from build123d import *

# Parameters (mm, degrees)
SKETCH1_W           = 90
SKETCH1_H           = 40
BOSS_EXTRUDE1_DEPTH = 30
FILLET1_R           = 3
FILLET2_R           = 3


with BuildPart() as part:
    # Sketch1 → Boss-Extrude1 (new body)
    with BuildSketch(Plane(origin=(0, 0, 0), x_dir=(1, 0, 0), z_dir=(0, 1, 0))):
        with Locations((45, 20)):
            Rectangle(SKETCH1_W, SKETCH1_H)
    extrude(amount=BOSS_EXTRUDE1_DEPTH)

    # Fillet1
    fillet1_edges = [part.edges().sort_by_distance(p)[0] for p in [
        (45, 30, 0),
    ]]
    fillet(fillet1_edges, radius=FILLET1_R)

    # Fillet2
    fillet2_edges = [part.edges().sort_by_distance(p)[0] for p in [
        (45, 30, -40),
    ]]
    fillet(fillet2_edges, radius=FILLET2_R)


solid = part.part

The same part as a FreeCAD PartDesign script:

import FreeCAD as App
import Part
import Sketcher

V = App.Vector


def edges_at(feature, points):
    """Names of the edges that pass closest to the given points."""
    edges = feature.Shape.Edges
    near = lambda p: min(range(len(edges)), key=lambda i: edges[i].distToShape(Part.Vertex(*p))[0])
    return sorted({f"Edge{near(p) + 1}" for p in points})

doc = App.newDocument("Part")
params = doc.addObject("Spreadsheet::Sheet", "Params")
for row, (alias, value) in enumerate([
    ("sketch1_width", "90 mm"),
    ("sketch1_height", "40 mm"),
    ("pad1_length", "30 mm"),
    ("fillet_radius", "3 mm"),
    ("fillet2_radius", "3 mm"),
], start=1):
    params.set(f"A{row}", alias)
    params.set(f"B{row}", "=" + value)
    params.setAlias(f"B{row}", alias)

body = doc.addObject("PartDesign::Body", "Body")

# Sketch on XZ plane
sketch1 = body.newObject("Sketcher::SketchObject", "Sketch")
sketch1.AttachmentSupport = (doc.getObject("XZ_Plane"), [""])
sketch1.MapMode = "FlatFace"
sketch1.addGeometry([
    Part.LineSegment(V(0, -40, 0), V(0, 0, 0)),
    Part.LineSegment(V(0, 0, 0), V(90, 0, 0)),
    Part.LineSegment(V(90, 0, 0), V(90, -40, 0)),
    Part.LineSegment(V(90, -40, 0), V(0, -40, 0)),
], False)
sketch1.addConstraint([
    Sketcher.Constraint("Coincident", 0, 2, 1, 1),
    Sketcher.Constraint("Coincident", 1, 2, 2, 1),
    Sketcher.Constraint("Coincident", 2, 2, 3, 1),
    Sketcher.Constraint("Coincident", 3, 2, 0, 1),
    Sketcher.Constraint("Vertical", 0),
    Sketcher.Constraint("Horizontal", 1),
    Sketcher.Constraint("Vertical", 2),
    Sketcher.Constraint("Horizontal", 3),
    Sketcher.Constraint("Coincident", 0, 2, -1, 1),
    Sketcher.Constraint("DistanceX", 1, 1, 1, 2, 90.0),
    Sketcher.Constraint("DistanceY", 0, 1, 0, 2, 40.0),
])
sketch1.setExpression("Constraints[9]", "Params.sketch1_width")
sketch1.setExpression("Constraints[10]", "Params.sketch1_height")
pad1 = body.newObject("PartDesign::Pad", "Pad")
pad1.Profile = sketch1
pad1.setExpression("Length", "Params.pad1_length")
pad1.Reversed = True
doc.recompute()

fillet = body.newObject("PartDesign::Fillet", "Fillet")
fillet.Base = (pad1, edges_at(pad1, [(45, 30, 0)]))
fillet.setExpression("Radius", "Params.fillet_radius")
doc.recompute()

fillet2 = body.newObject("PartDesign::Fillet", "Fillet001")
fillet2.Base = (fillet, edges_at(fillet, [(45, 30, -40)]))
fillet2.setExpression("Radius", "Params.fillet2_radius")

doc.recompute()
